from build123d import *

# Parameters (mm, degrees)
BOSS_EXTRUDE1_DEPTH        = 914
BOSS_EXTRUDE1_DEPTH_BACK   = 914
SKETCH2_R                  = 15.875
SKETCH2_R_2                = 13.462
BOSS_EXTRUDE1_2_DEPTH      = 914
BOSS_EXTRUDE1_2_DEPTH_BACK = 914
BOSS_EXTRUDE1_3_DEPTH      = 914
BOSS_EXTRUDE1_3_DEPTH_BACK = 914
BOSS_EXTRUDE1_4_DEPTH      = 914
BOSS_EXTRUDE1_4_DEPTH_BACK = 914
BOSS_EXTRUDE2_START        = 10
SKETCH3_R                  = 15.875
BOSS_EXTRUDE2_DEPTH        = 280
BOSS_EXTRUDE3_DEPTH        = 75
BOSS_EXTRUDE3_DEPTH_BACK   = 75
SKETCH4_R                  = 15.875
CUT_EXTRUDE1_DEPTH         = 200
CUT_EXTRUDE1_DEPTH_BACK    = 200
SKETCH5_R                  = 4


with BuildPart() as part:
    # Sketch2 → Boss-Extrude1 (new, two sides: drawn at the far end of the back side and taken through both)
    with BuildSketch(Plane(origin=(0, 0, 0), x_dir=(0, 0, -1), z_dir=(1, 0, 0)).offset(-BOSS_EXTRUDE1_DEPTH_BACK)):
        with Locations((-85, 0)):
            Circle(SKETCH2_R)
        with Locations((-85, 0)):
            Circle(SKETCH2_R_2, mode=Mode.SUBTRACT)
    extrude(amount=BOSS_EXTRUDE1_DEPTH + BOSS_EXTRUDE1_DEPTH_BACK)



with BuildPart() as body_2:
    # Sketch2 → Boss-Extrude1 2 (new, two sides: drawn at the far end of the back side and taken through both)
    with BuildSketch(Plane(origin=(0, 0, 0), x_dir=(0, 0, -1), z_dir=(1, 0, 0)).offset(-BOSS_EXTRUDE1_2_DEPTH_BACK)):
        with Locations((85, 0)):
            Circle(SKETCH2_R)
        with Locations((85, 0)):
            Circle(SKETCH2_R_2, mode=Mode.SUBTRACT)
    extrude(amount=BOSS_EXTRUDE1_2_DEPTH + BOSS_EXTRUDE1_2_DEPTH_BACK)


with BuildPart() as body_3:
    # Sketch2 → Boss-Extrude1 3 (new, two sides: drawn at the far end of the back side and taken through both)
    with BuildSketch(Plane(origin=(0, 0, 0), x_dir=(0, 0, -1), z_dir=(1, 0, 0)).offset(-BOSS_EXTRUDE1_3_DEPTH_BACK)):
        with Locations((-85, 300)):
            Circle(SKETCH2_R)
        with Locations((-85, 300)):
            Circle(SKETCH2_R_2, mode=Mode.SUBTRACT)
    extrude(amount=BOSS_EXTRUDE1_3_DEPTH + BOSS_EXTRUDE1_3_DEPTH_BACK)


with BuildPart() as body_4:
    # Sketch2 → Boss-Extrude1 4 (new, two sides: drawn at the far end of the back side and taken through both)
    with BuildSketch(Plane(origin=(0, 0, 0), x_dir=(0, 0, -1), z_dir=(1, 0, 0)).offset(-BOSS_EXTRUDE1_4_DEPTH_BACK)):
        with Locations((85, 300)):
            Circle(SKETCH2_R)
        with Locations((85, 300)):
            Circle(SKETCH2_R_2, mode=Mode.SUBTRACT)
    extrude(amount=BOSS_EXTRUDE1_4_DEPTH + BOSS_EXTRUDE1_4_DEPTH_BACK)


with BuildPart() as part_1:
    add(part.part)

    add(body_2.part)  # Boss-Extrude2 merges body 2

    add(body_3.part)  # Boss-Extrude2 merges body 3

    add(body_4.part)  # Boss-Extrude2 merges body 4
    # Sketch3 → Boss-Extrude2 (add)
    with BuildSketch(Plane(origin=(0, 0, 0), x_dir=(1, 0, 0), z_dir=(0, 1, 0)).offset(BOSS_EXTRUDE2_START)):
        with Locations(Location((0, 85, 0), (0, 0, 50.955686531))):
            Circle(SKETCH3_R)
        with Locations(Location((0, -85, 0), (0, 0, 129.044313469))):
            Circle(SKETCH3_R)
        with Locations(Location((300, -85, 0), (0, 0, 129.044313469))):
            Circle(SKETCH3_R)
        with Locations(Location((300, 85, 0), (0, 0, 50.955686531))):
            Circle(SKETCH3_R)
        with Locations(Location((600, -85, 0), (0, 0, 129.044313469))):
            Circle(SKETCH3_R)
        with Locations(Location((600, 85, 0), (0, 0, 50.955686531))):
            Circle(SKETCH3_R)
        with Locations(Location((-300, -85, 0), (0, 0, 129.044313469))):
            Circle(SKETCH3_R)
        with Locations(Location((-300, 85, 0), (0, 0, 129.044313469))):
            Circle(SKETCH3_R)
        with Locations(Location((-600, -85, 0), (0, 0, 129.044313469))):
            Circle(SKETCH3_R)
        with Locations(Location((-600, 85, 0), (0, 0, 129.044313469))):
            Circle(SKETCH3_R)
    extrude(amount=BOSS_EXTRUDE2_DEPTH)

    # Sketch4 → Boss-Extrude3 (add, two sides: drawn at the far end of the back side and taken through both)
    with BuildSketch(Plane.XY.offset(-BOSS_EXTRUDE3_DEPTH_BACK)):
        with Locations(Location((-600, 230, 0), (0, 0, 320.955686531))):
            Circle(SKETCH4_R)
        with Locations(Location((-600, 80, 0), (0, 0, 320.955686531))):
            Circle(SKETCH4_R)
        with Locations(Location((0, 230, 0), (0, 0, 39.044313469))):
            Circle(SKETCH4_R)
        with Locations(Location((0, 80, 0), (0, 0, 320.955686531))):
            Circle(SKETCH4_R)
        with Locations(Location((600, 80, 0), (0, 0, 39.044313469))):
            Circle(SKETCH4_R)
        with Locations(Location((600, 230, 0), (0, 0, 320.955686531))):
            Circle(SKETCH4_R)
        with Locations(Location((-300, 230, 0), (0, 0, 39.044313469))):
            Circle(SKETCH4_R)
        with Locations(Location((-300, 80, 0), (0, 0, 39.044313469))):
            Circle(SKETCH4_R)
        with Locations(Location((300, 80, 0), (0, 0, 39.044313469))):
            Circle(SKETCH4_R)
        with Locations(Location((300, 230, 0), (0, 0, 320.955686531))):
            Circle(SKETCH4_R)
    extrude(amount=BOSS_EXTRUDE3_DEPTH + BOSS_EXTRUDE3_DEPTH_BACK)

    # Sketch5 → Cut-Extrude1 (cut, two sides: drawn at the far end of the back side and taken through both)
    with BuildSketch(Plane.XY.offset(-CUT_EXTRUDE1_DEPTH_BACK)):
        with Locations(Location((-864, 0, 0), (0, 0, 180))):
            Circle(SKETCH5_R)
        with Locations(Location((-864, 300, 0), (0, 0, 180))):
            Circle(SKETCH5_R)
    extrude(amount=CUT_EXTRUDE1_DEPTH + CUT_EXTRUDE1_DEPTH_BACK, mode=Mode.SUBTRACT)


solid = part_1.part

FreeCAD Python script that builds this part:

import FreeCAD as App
import Part
import Sketcher
from FreeCAD import Vector
Q = App.Units.Quantity

doc = App.newDocument("Part")
body = doc.addObject("PartDesign::Body", "Body")

sketch1 = body.newObject("Sketcher::SketchObject", "Sketch")
sketch1.AttachmentSupport = (doc.getObject("YZ_Plane"), [""])
sketch1.MapMode = "FlatFace"
sketch1.addGeometry(Part.Circle(Vector(0, 85, 0), Vector(0, 0, 1), 16), False)
sketch1.addGeometry(Part.Circle(Vector(0, 85, 0), Vector(0, 0, 1), 13), False)
sketch1.addConstraint(Sketcher.Constraint("Coincident", 1, 3, 0, 3))
sketch1.addConstraint(Sketcher.Constraint("PointOnObject", 0, 3, -2))
sketch1.addConstraint(Sketcher.Constraint("Diameter", 0, Q("31.75 mm")))
sketch1.addConstraint(Sketcher.Constraint("Diameter", 1, Q("26.924 mm")))
sketch1.addConstraint(Sketcher.Constraint("DistanceY", -1, 1, 0, 3, Q("85 mm")))
pad1 = body.newObject("PartDesign::Pad", "Pad")
pad1.Profile = sketch1
pad1.Type = "TwoLengths"
pad1.Length = 914
pad1.Length2 = 914
body2 = doc.addObject("PartDesign::Body", "Body001")

sketch2 = body2.newObject("Sketcher::SketchObject", "Sketch001")
sketch2.AttachmentSupport = (doc.getObject("YZ_Plane001"), [""])
sketch2.MapMode = "FlatFace"
sketch2.addGeometry(Part.Circle(Vector(0, -85, 0), Vector(0, 0, 1), 16), False)
sketch2.addGeometry(Part.Circle(Vector(0, -85, 0), Vector(0, 0, 1), 13), False)
sketch2.addConstraint(Sketcher.Constraint("Coincident", 1, 3, 0, 3))
sketch2.addConstraint(Sketcher.Constraint("PointOnObject", 0, 3, -2))
sketch2.addConstraint(Sketcher.Constraint("Diameter", 0, Q("31.75 mm")))
sketch2.addConstraint(Sketcher.Constraint("Diameter", 1, Q("26.924 mm")))
sketch2.addConstraint(Sketcher.Constraint("DistanceY", 0, 3, -1, 1, Q("85 mm")))
pad2 = body2.newObject("PartDesign::Pad", "Pad001")
pad2.Profile = sketch2
pad2.Type = "TwoLengths"
pad2.Length = 914
pad2.Length2 = 914
body3 = doc.addObject("PartDesign::Body", "Body002")

sketch3 = body3.newObject("Sketcher::SketchObject", "Sketch002")
sketch3.AttachmentSupport = (doc.getObject("YZ_Plane002"), [""])
sketch3.MapMode = "FlatFace"
sketch3.addGeometry(Part.Circle(Vector(300, 85, 0), Vector(0, 0, 1), 16), False)
sketch3.addGeometry(Part.Circle(Vector(300, 85, 0), Vector(0, 0, 1), 13), False)
sketch3.addConstraint(Sketcher.Constraint("Coincident", 1, 3, 0, 3))
sketch3.addConstraint(Sketcher.Constraint("Diameter", 0, Q("31.75 mm")))
sketch3.addConstraint(Sketcher.Constraint("Diameter", 1, Q("26.924 mm")))
sketch3.addConstraint(Sketcher.Constraint("DistanceX", -1, 1, 0, 3, Q("300 mm")))
sketch3.addConstraint(Sketcher.Constraint("DistanceY", -1, 1, 0, 3, Q("85 mm")))
pad3 = body3.newObject("PartDesign::Pad", "Pad002")
pad3.Profile = sketch3
pad3.Type = "TwoLengths"
pad3.Length = 914
pad3.Length2 = 914
body4 = doc.addObject("PartDesign::Body", "Body003")

sketch4 = body4.newObject("Sketcher::SketchObject", "Sketch003")
sketch4.AttachmentSupport = (doc.getObject("YZ_Plane003"), [""])
sketch4.MapMode = "FlatFace"
sketch4.addGeometry(Part.Circle(Vector(300, -85, 0), Vector(0, 0, 1), 16), False)
sketch4.addGeometry(Part.Circle(Vector(300, -85, 0), Vector(0, 0, 1), 13), False)
sketch4.addConstraint(Sketcher.Constraint("Coincident", 1, 3, 0, 3))
sketch4.addConstraint(Sketcher.Constraint("Diameter", 0, Q("31.75 mm")))
sketch4.addConstraint(Sketcher.Constraint("Diameter", 1, Q("26.924 mm")))
sketch4.addConstraint(Sketcher.Constraint("DistanceX", -1, 1, 0, 3, Q("300 mm")))
sketch4.addConstraint(Sketcher.Constraint("DistanceY", 0, 3, -1, 1, Q("85 mm")))
pad4 = body4.newObject("PartDesign::Pad", "Pad003")
pad4.Profile = sketch4
pad4.Type = "TwoLengths"
pad4.Length = 914
pad4.Length2 = 914
body.AllowCompound = True
doc.recompute()

boolean = body.newObject("PartDesign::Boolean", "Boolean")
boolean.Type = "Fuse"
boolean.addObjects([body2])
doc.recompute()

boolean2 = body.newObject("PartDesign::Boolean", "Boolean001")
boolean2.Type = "Fuse"
boolean2.addObjects([body3])
doc.recompute()

boolean3 = body.newObject("PartDesign::Boolean", "Boolean002")
boolean3.Type = "Fuse"
boolean3.addObjects([body4])

sketch5 = body.newObject("Sketcher::SketchObject", "Sketch004")
sketch5.AttachmentSupport = (doc.getObject("XZ_Plane"), [""])
sketch5.MapMode = "FlatFace"
sketch5.AttachmentOffset = App.Placement(Vector(0, 0, -10), App.Rotation())
sketch5.addGeometry(Part.Circle(Vector(0, -85, 0), Vector(0, 0, 1), 16), False)
sketch5.addGeometry(Part.Circle(Vector(0, 85, 0), Vector(0, 0, 1), 16), False)
sketch5.addGeometry(Part.Circle(Vector(300, 85, 0), Vector(0, 0, 1), 16), False)
sketch5.addGeometry(Part.Circle(Vector(300, -85, 0), Vector(0, 0, 1), 16), False)
sketch5.addGeometry(Part.Circle(Vector(600, 85, 0), Vector(0, 0, 1), 16), False)
sketch5.addGeometry(Part.Circle(Vector(600, -85, 0), Vector(0, 0, 1), 16), False)
sketch5.addGeometry(Part.Circle(Vector(-300, 85, 0), Vector(0, 0, 1), 16), False)
sketch5.addGeometry(Part.Circle(Vector(-300, -85, 0), Vector(0, 0, 1), 16), False)
sketch5.addGeometry(Part.Circle(Vector(-600, 85, 0), Vector(0, 0, 1), 16), False)
sketch5.addGeometry(Part.Circle(Vector(-600, -85, 0), Vector(0, 0, 1), 16), False)
sketch5.addConstraint(Sketcher.Constraint("Equal", 0, 1))
sketch5.addConstraint(Sketcher.Constraint("Equal", 1, 2))
sketch5.addConstraint(Sketcher.Constraint("Equal", 2, 3))
sketch5.addConstraint(Sketcher.Constraint("Equal", 3, 4))
sketch5.addConstraint(Sketcher.Constraint("Equal", 4, 5))
sketch5.addConstraint(Sketcher.Constraint("Equal", 5, 6))
sketch5.addConstraint(Sketcher.Constraint("Equal", 6, 7))
sketch5.addConstraint(Sketcher.Constraint("Equal", 7, 8))
sketch5.addConstraint(Sketcher.Constraint("Equal", 8, 9))
sketch5.addConstraint(Sketcher.Constraint("Symmetric", 0, 3, 1, 3, -1, 1))
sketch5.addConstraint(Sketcher.Constraint("Symmetric", 3, 3, 6, 3, -1, 1))
sketch5.addConstraint(Sketcher.Constraint("Symmetric", 2, 3, 7, 3, -1, 1))
sketch5.addConstraint(Sketcher.Constraint("Symmetric", 5, 3, 8, 3, -1, 1))
sketch5.addConstraint(Sketcher.Constraint("Symmetric", 4, 3, 9, 3, -1, 1))
sketch5.addConstraint(Sketcher.Constraint("Symmetric", 2, 3, 6, 3, -2))
sketch5.addConstraint(Sketcher.Constraint("Symmetric", 4, 3, 8, 3, -2))
sketch5.addConstraint(Sketcher.Constraint("PointOnObject", 0, 3, -2))
sketch5.addConstraint(Sketcher.Constraint("Horizontal", 1, 3, 2, 3))
sketch5.addConstraint(Sketcher.Constraint("Horizontal", 2, 3, 4, 3))
sketch5.addConstraint(Sketcher.Constraint("Diameter", 0, Q("31.75 mm")))
sketch5.addConstraint(Sketcher.Constraint("DistanceY", 0, 3, -1, 1, Q("85 mm")))
sketch5.addConstraint(Sketcher.Constraint("DistanceX", -1, 1, 2, 3, Q("300 mm")))
sketch5.addConstraint(Sketcher.Constraint("DistanceX", -1, 1, 4, 3, Q("600 mm")))
pad5 = body.newObject("PartDesign::Pad", "Pad004")
pad5.Profile = sketch5
pad5.Length = 280
pad5.Reversed = True

sketch6 = body.newObject("Sketcher::SketchObject", "Sketch005")
sketch6.AttachmentSupport = (doc.getObject("XY_Plane"), [""])
sketch6.MapMode = "FlatFace"
sketch6.addGeometry(Part.Circle(Vector(-600, 230, 0), Vector(0, 0, 1), 16), False)
sketch6.addGeometry(Part.Circle(Vector(-600, 80, 0), Vector(0, 0, 1), 16), False)
sketch6.addGeometry(Part.Circle(Vector(0, 230, 0), Vector(0, 0, 1), 16), False)
sketch6.addGeometry(Part.Circle(Vector(0, 80, 0), Vector(0, 0, 1), 16), False)
sketch6.addGeometry(Part.Circle(Vector(600, 80, 0), Vector(0, 0, 1), 16), False)
sketch6.addGeometry(Part.Circle(Vector(600, 230, 0), Vector(0, 0, 1), 16), False)
sketch6.addGeometry(Part.Circle(Vector(-300, 230, 0), Vector(0, 0, 1), 16), False)
sketch6.addGeometry(Part.Circle(Vector(-300, 80, 0), Vector(0, 0, 1), 16), False)
sketch6.addGeometry(Part.Circle(Vector(300, 80, 0), Vector(0, 0, 1), 16), False)
sketch6.addGeometry(Part.Circle(Vector(300, 230, 0), Vector(0, 0, 1), 16), False)
sketch6.addConstraint(Sketcher.Constraint("Equal", 0, 1))
sketch6.addConstraint(Sketcher.Constraint("Equal", 1, 2))
sketch6.addConstraint(Sketcher.Constraint("Equal", 2, 3))
sketch6.addConstraint(Sketcher.Constraint("Equal", 3, 4))
sketch6.addConstraint(Sketcher.Constraint("Equal", 4, 5))
sketch6.addConstraint(Sketcher.Constraint("Equal", 5, 6))
sketch6.addConstraint(Sketcher.Constraint("Equal", 6, 7))
sketch6.addConstraint(Sketcher.Constraint("Equal", 7, 8))
sketch6.addConstraint(Sketcher.Constraint("Equal", 8, 9))
sketch6.addConstraint(Sketcher.Constraint("Symmetric", 1, 3, 4, 3, -2))
sketch6.addConstraint(Sketcher.Constraint("Symmetric", 0, 3, 5, 3, -2))
sketch6.addConstraint(Sketcher.Constraint("Symmetric", 7, 3, 8, 3, -2))
sketch6.addConstraint(Sketcher.Constraint("Symmetric", 6, 3, 9, 3, -2))
sketch6.addConstraint(Sketcher.Constraint("PointOnObject", 2, 3, -2))
sketch6.addConstraint(Sketcher.Constraint("PointOnObject", 3, 3, -2))
sketch6.addConstraint(Sketcher.Constraint("Horizontal", 0, 3, 2, 3))
sketch6.addConstraint(Sketcher.Constraint("Horizontal", 1, 3, 3, 3))
sketch6.addConstraint(Sketcher.Constraint("Horizontal", 5, 3, 6, 3))
sketch6.addConstraint(Sketcher.Constraint("Horizontal", 4, 3, 7, 3))
sketch6.addConstraint(Sketcher.Constraint("Vertical", 0, 3, 1, 3))
sketch6.addConstraint(Sketcher.Constraint("Vertical", 6, 3, 7, 3))
sketch6.addConstraint(Sketcher.Constraint("Diameter", 0, Q("31.75 mm")))
sketch6.addConstraint(Sketcher.Constraint("DistanceX", 0, 3, -1, 1, Q("600 mm")))
sketch6.addConstraint(Sketcher.Constraint("DistanceY", -1, 1, 0, 3, Q("230 mm")))
sketch6.addConstraint(Sketcher.Constraint("DistanceY", -1, 1, 1, 3, Q("80 mm")))
sketch6.addConstraint(Sketcher.Constraint("DistanceX", 6, 3, -1, 1, Q("300 mm")))
pad6 = body.newObject("PartDesign::Pad", "Pad005")
pad6.Profile = sketch6
pad6.Type = "TwoLengths"
pad6.Length = 75
pad6.Length2 = 75

sketch7 = body.newObject("Sketcher::SketchObject", "Sketch006")
sketch7.AttachmentSupport = (doc.getObject("XY_Plane"), [""])
sketch7.MapMode = "FlatFace"
sketch7.addGeometry(Part.Circle(Vector(-864, 0, 0), Vector(0, 0, 1), 4), False)
sketch7.addGeometry(Part.Circle(Vector(-864, 300, 0), Vector(0, 0, 1), 4), False)
sketch7.addConstraint(Sketcher.Constraint("Equal", 0, 1))
sketch7.addConstraint(Sketcher.Constraint("PointOnObject", 0, 3, -1))
sketch7.addConstraint(Sketcher.Constraint("Vertical", 0, 3, 1, 3))
sketch7.addConstraint(Sketcher.Constraint("Diameter", 0, Q("8 mm")))
sketch7.addConstraint(Sketcher.Constraint("DistanceX", 0, 3, -1, 1, Q("864 mm")))
sketch7.addConstraint(Sketcher.Constraint("DistanceY", -1, 1, 1, 3, Q("300 mm")))
pocket1 = body.newObject("PartDesign::Pocket", "Pocket")
pocket1.Profile = sketch7
pocket1.Type = "ThroughAll"
pocket1.Midplane = True

doc.recompute()
